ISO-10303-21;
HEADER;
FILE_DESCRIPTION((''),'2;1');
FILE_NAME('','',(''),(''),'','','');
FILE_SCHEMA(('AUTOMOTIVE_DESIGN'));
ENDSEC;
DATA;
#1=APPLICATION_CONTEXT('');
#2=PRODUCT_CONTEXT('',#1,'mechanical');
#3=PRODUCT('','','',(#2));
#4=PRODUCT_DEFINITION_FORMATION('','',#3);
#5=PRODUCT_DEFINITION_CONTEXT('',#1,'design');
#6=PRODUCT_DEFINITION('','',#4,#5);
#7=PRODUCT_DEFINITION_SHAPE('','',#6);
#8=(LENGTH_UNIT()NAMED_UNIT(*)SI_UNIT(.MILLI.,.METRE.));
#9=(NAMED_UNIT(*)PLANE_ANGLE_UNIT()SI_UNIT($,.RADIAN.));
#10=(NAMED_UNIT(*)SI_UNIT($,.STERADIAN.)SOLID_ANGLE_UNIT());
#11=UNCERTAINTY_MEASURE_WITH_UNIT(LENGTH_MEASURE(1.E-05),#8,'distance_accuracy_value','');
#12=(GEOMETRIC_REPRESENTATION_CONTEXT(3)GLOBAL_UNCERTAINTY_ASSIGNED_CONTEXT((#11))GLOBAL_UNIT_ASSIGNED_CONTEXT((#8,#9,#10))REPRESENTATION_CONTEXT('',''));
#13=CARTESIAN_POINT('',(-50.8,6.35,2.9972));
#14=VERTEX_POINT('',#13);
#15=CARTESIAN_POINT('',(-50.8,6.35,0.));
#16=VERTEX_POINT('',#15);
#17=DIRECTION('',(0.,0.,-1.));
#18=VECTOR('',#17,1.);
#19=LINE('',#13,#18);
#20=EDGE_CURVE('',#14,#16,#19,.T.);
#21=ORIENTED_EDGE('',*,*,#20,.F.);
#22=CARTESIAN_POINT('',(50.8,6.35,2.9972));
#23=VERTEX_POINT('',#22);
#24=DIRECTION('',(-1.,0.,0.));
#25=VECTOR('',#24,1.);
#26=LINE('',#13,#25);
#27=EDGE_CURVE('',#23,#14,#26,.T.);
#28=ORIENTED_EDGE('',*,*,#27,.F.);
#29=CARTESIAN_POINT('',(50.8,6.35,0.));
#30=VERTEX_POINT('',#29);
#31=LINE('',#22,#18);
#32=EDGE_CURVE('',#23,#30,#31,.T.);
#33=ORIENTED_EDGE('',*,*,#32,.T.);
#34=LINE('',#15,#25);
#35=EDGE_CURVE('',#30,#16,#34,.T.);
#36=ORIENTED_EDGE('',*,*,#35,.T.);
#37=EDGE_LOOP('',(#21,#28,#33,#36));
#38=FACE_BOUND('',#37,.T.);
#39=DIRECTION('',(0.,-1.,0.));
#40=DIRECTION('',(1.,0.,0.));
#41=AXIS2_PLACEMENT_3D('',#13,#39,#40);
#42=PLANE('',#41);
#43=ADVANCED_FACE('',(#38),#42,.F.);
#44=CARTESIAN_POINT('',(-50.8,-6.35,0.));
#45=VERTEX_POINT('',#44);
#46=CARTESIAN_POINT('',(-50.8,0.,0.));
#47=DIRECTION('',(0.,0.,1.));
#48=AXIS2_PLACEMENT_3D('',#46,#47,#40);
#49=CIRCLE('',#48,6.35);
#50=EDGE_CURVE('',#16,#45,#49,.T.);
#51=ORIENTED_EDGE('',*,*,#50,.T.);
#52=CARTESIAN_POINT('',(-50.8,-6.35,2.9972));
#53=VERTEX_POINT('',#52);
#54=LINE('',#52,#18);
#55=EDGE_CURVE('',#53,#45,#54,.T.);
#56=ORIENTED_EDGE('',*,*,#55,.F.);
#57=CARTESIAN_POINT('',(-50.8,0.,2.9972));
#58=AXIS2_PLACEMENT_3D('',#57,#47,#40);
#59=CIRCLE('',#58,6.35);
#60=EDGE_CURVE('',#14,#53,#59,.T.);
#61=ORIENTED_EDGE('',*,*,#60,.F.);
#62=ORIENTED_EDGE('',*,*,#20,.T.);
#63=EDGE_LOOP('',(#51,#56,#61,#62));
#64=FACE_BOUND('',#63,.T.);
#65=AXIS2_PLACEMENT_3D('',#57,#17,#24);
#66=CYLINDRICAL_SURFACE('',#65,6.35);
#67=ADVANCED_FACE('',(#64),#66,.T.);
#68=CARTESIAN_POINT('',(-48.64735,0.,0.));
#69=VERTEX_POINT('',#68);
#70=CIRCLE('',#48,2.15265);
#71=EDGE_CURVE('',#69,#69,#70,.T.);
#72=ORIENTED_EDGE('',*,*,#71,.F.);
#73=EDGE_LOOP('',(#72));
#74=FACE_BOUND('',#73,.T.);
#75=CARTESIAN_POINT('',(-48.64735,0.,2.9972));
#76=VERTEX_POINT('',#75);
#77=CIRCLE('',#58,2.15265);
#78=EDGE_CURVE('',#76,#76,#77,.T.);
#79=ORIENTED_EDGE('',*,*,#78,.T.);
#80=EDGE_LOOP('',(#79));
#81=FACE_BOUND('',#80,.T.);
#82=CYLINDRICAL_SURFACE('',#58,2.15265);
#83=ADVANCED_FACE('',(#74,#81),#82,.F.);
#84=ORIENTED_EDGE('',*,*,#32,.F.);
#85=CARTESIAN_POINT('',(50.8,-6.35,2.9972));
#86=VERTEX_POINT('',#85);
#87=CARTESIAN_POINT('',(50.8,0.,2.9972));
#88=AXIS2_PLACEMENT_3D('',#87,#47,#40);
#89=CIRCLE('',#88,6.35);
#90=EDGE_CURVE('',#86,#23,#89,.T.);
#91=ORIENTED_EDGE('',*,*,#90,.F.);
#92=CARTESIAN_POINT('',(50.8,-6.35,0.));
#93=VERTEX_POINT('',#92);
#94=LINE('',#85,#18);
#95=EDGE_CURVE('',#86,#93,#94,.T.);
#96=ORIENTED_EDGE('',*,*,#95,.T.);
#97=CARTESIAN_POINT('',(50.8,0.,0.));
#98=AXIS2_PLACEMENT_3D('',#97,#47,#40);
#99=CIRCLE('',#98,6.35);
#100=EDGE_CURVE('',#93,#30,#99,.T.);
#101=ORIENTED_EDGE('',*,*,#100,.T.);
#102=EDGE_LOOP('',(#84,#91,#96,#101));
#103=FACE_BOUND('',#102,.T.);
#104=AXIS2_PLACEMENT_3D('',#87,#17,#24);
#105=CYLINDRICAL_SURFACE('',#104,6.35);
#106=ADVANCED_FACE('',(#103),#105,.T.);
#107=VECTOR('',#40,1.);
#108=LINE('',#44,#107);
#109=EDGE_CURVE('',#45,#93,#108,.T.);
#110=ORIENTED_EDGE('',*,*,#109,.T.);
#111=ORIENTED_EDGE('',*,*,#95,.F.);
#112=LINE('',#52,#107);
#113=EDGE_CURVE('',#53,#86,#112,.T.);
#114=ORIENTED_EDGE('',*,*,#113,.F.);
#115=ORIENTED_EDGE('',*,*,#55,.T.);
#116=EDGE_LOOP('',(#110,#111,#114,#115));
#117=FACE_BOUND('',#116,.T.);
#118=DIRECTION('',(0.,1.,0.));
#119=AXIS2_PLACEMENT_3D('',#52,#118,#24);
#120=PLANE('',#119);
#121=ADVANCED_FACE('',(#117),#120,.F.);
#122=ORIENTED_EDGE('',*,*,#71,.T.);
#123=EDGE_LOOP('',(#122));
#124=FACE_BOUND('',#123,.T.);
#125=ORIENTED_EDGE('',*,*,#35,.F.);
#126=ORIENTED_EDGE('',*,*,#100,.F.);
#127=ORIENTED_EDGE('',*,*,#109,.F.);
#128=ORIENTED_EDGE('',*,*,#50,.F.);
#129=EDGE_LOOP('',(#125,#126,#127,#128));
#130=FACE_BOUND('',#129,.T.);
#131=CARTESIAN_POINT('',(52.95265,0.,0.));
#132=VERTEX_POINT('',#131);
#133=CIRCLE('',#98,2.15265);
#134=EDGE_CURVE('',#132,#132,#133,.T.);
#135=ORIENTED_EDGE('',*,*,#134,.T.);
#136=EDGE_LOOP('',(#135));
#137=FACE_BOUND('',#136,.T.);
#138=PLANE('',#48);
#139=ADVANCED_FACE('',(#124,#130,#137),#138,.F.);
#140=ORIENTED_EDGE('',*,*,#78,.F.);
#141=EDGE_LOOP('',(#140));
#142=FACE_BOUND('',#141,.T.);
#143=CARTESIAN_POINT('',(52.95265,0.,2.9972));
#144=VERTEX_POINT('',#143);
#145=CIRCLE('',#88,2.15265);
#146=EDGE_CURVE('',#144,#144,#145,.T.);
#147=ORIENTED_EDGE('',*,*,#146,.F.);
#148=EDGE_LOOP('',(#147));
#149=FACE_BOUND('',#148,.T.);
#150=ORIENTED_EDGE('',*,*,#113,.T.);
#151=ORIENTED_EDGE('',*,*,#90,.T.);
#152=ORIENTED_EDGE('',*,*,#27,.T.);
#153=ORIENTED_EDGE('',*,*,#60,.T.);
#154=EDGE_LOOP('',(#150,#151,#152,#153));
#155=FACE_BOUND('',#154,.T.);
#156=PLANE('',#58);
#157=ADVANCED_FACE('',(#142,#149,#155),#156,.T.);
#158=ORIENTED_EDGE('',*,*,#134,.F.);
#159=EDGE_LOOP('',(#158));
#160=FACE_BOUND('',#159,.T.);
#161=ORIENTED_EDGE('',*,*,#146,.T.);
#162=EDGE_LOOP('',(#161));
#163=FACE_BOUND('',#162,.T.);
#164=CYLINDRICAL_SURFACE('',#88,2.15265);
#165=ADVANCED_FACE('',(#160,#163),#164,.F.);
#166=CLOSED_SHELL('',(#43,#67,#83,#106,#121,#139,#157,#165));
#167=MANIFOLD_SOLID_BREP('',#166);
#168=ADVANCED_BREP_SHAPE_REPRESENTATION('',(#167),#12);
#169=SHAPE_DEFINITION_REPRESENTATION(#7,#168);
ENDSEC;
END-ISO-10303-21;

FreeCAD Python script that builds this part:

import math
import FreeCAD as App
import Part
import Sketcher
Q = App.Units.Quantity

doc = App.newDocument("Part")
body = doc.addObject("PartDesign::Body", "Body")

sketch1 = body.newObject("Sketcher::SketchObject", "Sketch")
sketch1.AttachmentSupport = (doc.getObject("XY_Plane"), [""])
sketch1.MapMode = "FlatFace"
sketch1.addGeometry(Part.LineSegment(App.Vector(51, 6, 0), App.Vector(-51, 6, 0)), False)
sketch1.addGeometry(Part.ArcOfCircle(Part.Circle(App.Vector(-51, 0, 0), App.Vector(0, 0, 1), 6), math.radians(90), math.radians(270)), False)
sketch1.addGeometry(Part.LineSegment(App.Vector(-51, -6, 0), App.Vector(51, -6, 0)), False)
sketch1.addGeometry(Part.ArcOfCircle(Part.Circle(App.Vector(51, 0, 0), App.Vector(0, 0, 1), 6), math.radians(-90), math.radians(90)), False)
sketch1.addConstraint(Sketcher.Constraint("Tangent", 0, 2, 1, 1))
sketch1.addConstraint(Sketcher.Constraint("Tangent", 1, 2, 2, 1))
sketch1.addConstraint(Sketcher.Constraint("Tangent", 2, 2, 3, 1))
sketch1.addConstraint(Sketcher.Constraint("Tangent", 3, 2, 0, 1))
sketch1.addConstraint(Sketcher.Constraint("Horizontal", 0))
sketch1.addConstraint(Sketcher.Constraint("Horizontal", 2))
sketch1.addConstraint(Sketcher.Constraint("Symmetric", 1, 3, 3, 3, -1, 1))
sketch1.addConstraint(Sketcher.Constraint("DistanceX", 0, 2, 0, 1, Q("4 in")))
sketch1.addConstraint(Sketcher.Constraint("Radius", 1, Q("0.25 in")))
pad1 = body.newObject("PartDesign::Pad", "Pad")
pad1.Profile = sketch1
pad1.Length = Q("0.118 in")

sketch2 = body.newObject("Sketcher::SketchObject", "Sketch001")
sketch2.AttachmentSupport = (doc.getObject("XY_Plane"), [""])
sketch2.MapMode = "FlatFace"
sketch2.AttachmentOffset = App.Placement(App.Vector(0, 0, 0.118 * 25.4), App.Rotation())
sketch2.addGeometry(Part.Circle(App.Vector(-50.8, 0, 0), App.Vector(0, 0, 1), 2.2), False)
sketch2.addGeometry(Part.Circle(App.Vector(50.8, 0, 0), App.Vector(0, 0, 1), 2.2), False)
sketch2.addConstraint(Sketcher.Constraint("Equal", 0, 1))
sketch2.addConstraint(Sketcher.Constraint("Symmetric", 0, 3, 1, 3, -1, 1))
sketch2.addConstraint(Sketcher.Constraint("PointOnObject", 0, 3, -1))
sketch2.addConstraint(Sketcher.Constraint("DistanceX", 0, 3, -1, 1, Q("2 in")))
sketch2.addConstraint(Sketcher.Constraint("Diameter", 0, Q("0.1695 in")))
doc.recompute()
hole = body.newObject("PartDesign::Hole", "Hole")
hole.Profile = sketch2
hole.ThreadType = "None"
hole.Diameter = Q("0.1695 in")
hole.DepthType = "Dimension"
hole.Depth = 6.351016
hole.DrillPoint = "Flat"

doc.recompute()
